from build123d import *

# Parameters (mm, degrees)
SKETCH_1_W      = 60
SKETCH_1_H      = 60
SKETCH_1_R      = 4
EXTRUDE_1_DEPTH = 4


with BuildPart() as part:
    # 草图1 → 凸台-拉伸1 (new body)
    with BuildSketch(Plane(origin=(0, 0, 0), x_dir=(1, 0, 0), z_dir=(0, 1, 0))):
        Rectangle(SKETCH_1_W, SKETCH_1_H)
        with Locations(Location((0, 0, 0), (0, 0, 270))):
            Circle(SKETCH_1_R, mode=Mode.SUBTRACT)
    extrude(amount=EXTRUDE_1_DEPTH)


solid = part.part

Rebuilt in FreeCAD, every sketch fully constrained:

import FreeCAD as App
import Part
import Sketcher

V = App.Vector
Q = App.Units.Quantity

doc = App.newDocument("Part")
body = doc.addObject("PartDesign::Body", "Body")

# Sketch on XZ plane
sketch1 = body.newObject("Sketcher::SketchObject", "Sketch")
sketch1.AttachmentSupport = (doc.getObject("XZ_Plane"), [""])
sketch1.MapMode = "FlatFace"
sketch1.addGeometry([
    Part.LineSegment(V(-30, -30, 0), V(-30, 30, 0)),  # 0
    Part.LineSegment(V(-30, 30, 0), V(30, 30, 0)),  # 1
    Part.LineSegment(V(30, 30, 0), V(30, -30, 0)),  # 2
    Part.LineSegment(V(30, -30, 0), V(-30, -30, 0)),  # 3
    Part.Circle(V(0, 0, 0), V(0, 0, 1), 4),  # 4
], False)
sketch1.addConstraint([
    Sketcher.Constraint("Coincident", 0, 2, 1, 1),
    Sketcher.Constraint("Coincident", 1, 2, 2, 1),
    Sketcher.Constraint("Coincident", 2, 2, 3, 1),
    Sketcher.Constraint("Coincident", 3, 2, 0, 1),
    Sketcher.Constraint("Vertical", 0),
    Sketcher.Constraint("Horizontal", 1),
    Sketcher.Constraint("Vertical", 2),
    Sketcher.Constraint("Horizontal", 3),
    Sketcher.Constraint("Coincident", 4, 3, -1, 1),
    Sketcher.Constraint("Symmetric", 0, 2, 2, 2, -1, 1),
    Sketcher.Constraint("Equal", 3, 0),
    Sketcher.Constraint("Diameter", 4, Q("8 mm")),
    Sketcher.Constraint("DistanceX", 1, 1, 1, 2, Q("60 mm")),
])
pad1 = body.newObject("PartDesign::Pad", "Pad")
pad1.Profile = sketch1
pad1.Length = 4
pad1.Reversed = True

doc.recompute()
